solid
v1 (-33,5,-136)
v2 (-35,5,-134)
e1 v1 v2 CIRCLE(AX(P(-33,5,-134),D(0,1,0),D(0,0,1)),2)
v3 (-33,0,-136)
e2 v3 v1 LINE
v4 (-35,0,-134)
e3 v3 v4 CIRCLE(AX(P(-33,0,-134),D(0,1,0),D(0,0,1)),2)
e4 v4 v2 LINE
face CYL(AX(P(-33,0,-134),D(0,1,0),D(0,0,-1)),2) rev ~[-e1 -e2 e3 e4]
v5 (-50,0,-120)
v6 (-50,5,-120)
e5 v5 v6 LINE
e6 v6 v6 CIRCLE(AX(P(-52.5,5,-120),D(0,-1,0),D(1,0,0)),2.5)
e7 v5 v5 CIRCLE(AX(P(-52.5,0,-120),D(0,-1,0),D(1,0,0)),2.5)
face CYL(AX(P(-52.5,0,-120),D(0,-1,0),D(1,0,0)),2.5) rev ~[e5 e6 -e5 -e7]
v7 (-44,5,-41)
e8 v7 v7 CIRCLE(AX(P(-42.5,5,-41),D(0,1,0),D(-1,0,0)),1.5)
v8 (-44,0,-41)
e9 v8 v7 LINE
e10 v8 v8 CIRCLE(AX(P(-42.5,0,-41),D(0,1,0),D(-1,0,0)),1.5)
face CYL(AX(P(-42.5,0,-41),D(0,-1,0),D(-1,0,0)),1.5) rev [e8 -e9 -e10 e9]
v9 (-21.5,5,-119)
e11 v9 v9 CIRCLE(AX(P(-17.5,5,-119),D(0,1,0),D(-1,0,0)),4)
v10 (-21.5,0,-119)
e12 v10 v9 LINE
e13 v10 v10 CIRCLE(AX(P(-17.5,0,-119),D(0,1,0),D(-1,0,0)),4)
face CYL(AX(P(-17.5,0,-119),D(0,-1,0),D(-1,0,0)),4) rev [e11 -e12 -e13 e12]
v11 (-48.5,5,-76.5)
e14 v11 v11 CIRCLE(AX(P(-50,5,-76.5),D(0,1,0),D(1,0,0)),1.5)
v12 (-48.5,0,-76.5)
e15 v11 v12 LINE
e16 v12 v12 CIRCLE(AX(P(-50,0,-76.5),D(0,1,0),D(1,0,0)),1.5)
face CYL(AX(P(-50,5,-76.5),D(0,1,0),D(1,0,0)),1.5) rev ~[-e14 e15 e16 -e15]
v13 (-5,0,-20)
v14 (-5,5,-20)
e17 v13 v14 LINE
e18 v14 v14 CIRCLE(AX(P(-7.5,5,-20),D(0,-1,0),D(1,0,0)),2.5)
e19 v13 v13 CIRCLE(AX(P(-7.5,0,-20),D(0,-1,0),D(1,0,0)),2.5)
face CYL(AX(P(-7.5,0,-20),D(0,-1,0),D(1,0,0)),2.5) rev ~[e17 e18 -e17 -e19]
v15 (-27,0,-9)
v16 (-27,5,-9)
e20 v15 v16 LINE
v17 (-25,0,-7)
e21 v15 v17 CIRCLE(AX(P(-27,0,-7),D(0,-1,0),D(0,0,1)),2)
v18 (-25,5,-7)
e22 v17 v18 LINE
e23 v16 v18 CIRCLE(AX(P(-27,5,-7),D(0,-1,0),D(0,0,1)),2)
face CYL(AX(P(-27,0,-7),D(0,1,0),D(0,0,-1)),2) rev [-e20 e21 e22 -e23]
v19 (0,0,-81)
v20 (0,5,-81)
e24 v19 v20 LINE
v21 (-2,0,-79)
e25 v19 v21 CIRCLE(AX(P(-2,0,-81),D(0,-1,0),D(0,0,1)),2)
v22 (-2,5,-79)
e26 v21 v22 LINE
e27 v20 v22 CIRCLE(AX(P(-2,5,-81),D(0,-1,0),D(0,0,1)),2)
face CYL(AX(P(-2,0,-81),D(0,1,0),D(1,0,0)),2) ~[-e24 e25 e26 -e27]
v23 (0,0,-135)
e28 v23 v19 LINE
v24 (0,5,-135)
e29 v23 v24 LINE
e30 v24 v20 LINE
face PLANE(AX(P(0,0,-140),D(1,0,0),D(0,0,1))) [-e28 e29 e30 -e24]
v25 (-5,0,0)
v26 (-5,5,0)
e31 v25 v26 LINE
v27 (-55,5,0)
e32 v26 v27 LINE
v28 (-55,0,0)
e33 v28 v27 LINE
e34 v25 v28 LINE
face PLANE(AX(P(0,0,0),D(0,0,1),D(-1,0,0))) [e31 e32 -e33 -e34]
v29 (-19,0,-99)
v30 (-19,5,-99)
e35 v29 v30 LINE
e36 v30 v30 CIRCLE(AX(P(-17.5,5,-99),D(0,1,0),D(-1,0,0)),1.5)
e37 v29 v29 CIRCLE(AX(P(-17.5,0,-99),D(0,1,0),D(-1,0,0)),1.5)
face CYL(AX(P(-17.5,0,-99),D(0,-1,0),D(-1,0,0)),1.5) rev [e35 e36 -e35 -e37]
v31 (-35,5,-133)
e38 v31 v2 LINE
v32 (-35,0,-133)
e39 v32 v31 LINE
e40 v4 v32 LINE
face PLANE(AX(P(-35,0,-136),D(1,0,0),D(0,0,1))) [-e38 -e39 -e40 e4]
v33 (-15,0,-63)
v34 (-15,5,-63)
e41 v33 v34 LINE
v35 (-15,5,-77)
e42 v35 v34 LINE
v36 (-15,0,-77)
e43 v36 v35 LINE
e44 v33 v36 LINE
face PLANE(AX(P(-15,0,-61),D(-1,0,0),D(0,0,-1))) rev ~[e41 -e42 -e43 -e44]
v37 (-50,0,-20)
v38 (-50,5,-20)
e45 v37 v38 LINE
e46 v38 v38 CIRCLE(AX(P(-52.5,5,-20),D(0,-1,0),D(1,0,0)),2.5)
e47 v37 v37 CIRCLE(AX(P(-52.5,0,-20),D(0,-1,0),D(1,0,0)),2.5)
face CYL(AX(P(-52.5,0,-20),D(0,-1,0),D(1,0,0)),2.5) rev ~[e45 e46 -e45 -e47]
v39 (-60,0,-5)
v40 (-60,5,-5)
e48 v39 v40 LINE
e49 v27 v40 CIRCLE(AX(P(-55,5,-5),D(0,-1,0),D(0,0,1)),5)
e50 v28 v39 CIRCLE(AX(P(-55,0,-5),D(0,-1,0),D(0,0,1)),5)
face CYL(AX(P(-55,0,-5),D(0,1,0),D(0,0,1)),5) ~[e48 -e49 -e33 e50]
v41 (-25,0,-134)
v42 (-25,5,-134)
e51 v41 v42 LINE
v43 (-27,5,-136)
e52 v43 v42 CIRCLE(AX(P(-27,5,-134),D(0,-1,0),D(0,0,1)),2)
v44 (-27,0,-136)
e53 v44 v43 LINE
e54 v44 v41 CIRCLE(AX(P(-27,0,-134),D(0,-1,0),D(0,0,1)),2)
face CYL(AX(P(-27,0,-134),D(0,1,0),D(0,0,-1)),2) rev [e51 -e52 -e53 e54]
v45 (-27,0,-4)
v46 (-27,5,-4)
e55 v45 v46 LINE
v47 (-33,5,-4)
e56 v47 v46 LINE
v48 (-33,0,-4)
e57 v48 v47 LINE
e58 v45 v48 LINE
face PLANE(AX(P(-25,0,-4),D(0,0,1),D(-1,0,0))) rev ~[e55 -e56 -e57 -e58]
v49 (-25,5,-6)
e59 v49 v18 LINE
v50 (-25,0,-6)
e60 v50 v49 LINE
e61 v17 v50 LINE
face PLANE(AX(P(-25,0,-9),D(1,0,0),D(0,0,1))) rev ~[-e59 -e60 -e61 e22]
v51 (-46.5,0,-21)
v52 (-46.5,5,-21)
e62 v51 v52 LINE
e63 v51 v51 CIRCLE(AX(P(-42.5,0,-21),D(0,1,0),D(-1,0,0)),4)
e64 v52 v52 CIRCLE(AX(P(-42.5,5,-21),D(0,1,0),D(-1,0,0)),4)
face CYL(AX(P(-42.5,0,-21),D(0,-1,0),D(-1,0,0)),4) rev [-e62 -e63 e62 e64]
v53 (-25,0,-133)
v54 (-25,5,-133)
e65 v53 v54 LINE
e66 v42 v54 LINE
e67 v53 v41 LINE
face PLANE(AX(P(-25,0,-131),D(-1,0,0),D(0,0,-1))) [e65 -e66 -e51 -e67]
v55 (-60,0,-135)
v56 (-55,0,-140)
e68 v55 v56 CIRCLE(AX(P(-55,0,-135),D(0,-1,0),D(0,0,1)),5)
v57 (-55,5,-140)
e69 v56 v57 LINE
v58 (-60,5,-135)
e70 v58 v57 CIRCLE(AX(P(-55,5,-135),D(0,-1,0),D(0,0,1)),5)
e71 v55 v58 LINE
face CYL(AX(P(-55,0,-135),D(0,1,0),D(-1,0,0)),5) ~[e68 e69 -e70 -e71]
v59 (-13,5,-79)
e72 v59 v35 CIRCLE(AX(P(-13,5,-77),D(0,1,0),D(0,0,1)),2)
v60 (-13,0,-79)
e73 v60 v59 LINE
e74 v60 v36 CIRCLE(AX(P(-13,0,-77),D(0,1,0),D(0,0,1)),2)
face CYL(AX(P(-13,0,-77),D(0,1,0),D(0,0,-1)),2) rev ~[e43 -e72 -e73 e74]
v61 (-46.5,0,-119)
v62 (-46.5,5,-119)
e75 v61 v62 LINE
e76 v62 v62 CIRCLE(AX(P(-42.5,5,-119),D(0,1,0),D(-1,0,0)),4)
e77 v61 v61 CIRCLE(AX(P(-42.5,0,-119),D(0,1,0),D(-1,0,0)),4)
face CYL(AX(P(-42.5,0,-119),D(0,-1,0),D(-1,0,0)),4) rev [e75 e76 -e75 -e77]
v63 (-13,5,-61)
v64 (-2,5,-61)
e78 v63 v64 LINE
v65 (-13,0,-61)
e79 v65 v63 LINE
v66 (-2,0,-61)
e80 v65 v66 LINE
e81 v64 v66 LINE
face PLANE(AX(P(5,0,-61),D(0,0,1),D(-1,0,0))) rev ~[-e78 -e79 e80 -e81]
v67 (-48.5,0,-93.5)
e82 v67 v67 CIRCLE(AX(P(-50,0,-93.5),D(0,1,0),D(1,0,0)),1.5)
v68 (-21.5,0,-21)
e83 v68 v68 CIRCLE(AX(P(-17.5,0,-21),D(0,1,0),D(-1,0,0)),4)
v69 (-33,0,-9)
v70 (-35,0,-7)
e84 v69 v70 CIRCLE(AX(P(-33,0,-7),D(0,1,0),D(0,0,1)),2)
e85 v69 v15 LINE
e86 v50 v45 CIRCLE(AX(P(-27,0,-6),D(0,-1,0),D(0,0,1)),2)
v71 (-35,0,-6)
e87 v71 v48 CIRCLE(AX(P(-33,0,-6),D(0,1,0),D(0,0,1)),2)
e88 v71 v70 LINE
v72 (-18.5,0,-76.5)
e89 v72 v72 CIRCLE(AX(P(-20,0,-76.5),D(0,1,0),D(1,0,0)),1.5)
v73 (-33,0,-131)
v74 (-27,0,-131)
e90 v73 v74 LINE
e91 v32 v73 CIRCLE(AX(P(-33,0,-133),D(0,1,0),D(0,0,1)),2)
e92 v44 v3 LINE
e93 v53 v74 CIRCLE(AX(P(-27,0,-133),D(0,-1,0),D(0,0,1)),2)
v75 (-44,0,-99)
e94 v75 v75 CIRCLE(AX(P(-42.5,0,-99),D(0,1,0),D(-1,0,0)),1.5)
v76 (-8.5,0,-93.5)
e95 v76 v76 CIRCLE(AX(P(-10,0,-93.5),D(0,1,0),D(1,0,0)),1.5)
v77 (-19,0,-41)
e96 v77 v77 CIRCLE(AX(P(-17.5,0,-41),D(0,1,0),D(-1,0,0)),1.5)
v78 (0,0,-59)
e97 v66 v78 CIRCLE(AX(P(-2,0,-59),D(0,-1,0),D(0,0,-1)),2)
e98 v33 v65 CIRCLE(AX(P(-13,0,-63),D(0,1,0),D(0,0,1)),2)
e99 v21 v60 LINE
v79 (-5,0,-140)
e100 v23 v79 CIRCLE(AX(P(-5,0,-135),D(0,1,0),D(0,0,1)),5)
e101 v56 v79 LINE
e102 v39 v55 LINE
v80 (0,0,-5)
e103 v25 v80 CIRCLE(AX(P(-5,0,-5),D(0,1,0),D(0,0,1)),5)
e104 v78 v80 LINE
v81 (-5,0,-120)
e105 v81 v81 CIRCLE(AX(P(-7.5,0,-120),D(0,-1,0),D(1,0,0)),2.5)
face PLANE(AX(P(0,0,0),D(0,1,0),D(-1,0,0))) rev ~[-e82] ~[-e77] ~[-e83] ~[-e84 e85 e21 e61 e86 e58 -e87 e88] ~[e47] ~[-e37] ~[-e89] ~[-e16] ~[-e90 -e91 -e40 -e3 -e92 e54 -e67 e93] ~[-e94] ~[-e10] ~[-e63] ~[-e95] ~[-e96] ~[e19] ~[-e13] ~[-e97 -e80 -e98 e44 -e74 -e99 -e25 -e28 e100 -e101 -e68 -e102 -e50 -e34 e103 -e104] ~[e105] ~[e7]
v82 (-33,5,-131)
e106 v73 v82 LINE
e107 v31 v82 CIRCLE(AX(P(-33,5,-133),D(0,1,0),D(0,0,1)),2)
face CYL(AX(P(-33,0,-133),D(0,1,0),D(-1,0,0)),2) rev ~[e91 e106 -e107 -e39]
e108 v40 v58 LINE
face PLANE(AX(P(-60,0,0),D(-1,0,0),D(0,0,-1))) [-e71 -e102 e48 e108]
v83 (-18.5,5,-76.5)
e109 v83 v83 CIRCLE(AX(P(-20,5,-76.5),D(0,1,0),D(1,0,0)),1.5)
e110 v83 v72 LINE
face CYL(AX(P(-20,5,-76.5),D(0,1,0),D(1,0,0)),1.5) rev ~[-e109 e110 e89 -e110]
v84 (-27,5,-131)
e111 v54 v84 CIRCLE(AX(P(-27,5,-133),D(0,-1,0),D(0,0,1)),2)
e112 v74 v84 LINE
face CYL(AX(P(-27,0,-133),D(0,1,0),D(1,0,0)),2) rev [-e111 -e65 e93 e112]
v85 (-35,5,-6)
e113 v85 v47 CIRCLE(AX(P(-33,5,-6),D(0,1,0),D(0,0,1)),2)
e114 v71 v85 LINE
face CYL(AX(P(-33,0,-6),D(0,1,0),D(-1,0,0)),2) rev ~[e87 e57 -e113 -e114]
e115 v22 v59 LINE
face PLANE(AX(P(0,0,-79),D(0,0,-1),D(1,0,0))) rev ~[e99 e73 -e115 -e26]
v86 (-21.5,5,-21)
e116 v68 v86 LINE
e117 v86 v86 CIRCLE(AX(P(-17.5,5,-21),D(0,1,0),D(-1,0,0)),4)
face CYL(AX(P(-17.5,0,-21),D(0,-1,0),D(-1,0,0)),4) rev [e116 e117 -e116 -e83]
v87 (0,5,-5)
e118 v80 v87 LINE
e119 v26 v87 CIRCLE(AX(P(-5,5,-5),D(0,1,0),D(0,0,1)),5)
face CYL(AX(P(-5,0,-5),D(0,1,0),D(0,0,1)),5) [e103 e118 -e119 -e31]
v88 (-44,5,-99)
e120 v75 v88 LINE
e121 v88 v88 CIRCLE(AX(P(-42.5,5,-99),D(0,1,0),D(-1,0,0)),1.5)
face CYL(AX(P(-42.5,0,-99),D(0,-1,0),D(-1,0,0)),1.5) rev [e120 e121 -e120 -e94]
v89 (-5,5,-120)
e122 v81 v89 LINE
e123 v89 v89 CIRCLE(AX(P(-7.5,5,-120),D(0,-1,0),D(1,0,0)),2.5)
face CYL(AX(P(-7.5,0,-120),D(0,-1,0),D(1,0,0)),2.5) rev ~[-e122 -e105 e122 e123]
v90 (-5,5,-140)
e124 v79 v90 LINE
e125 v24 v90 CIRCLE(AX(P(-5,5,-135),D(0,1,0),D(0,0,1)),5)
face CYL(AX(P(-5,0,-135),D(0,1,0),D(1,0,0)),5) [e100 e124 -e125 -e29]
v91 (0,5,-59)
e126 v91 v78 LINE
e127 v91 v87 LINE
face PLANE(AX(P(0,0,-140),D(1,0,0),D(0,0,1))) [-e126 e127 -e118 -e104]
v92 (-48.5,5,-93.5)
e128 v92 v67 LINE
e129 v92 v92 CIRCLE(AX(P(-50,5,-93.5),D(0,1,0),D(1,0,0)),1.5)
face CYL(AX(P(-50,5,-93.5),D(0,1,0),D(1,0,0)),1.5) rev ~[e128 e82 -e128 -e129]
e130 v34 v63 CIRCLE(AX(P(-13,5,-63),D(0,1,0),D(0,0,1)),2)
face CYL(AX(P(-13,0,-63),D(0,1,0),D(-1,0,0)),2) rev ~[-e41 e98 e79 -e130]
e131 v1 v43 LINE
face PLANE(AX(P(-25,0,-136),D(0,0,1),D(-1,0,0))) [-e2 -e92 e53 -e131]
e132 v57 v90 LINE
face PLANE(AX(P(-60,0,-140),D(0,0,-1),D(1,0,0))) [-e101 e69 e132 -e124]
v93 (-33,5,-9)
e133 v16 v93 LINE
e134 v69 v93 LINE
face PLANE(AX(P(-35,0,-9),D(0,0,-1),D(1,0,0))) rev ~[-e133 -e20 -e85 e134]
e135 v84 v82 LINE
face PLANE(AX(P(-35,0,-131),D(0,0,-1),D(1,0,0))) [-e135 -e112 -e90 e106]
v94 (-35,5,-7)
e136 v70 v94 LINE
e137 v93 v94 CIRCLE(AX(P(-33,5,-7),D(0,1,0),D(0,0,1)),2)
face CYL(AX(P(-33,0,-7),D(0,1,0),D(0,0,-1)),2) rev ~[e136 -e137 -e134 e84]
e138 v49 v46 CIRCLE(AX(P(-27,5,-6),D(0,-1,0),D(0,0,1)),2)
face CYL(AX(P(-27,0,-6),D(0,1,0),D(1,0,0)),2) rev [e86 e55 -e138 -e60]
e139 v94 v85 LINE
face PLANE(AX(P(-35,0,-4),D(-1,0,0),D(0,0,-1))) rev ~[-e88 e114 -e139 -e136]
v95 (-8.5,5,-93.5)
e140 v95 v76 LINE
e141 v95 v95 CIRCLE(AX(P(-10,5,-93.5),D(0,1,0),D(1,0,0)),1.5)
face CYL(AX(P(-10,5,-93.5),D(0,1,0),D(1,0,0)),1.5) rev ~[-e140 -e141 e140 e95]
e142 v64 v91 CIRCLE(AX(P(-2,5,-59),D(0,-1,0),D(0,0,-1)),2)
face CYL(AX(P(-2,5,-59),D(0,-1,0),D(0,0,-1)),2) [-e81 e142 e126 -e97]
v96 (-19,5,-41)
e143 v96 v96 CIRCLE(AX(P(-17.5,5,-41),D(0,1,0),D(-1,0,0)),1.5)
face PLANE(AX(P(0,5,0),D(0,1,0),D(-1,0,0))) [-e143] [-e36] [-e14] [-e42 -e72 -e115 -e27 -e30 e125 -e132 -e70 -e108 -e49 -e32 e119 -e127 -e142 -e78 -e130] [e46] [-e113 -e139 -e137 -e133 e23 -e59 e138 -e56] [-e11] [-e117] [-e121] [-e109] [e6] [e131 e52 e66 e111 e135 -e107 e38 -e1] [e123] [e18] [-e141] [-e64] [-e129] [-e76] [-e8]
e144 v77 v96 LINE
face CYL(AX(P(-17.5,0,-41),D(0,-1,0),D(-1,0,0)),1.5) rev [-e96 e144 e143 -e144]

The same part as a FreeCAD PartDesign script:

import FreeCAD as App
import Part
import Sketcher


def edges_at(feature, points):
    """Names of the edges that pass closest to the given points."""
    edges = feature.Shape.Edges
    near = lambda p: min(range(len(edges)), key=lambda i: edges[i].distToShape(Part.Vertex(*p))[0])
    return sorted({f"Edge{near(p) + 1}" for p in points})


def add_polygon(sketch, points):
    """Adds a closed chain of lines whose ends are joined by coincident constraints."""
    first, n = sketch.GeometryCount, len(points)
    for a, b in zip(points, points[1:] + points[:1]):
        sketch.addGeometry(Part.LineSegment(App.Vector(*a, 0), App.Vector(*b, 0)), False)
    for i in range(n):
        sketch.addConstraint(Sketcher.Constraint("Coincident", first + i, 2, first + (i + 1) % n, 1))

doc = App.newDocument("Part")
body = doc.addObject("PartDesign::Body", "Body")

# Sketch on XZ plane
sketch1 = doc.addObject("Sketcher::SketchObject", "Sketch")
body.addObject(sketch1)
sketch1.AttachmentSupport = (doc.XZ_Plane, [""])
sketch1.MapMode = "FlatFace"
add_polygon(sketch1, [(-60, 0), (0, 0), (0, -140), (-60, -140)])  # lines 0-3
sketch1.addGeometry(Part.Circle(App.Vector(-17.5, -119, 0), App.Vector(0, 0, 1), 4), False)  # 4
sketch1.addGeometry(Part.Circle(App.Vector(-17.5, -99, 0), App.Vector(0, 0, 1), 1.5), False)  # 5
sketch1.addGeometry(Part.Circle(App.Vector(-42.5, -119, 0), App.Vector(0, 0, 1), 4), False)  # 6
sketch1.addGeometry(Part.Circle(App.Vector(-42.5, -99, 0), App.Vector(0, 0, 1), 1.5), False)  # 7
sketch1.addGeometry(Part.Circle(App.Vector(-17.5, -41, 0), App.Vector(0, 0, 1), 1.5), False)  # 8
sketch1.addGeometry(Part.Circle(App.Vector(-17.5, -21, 0), App.Vector(0, 0, 1), 4), False)  # 9
sketch1.addGeometry(Part.Circle(App.Vector(-42.5, -41, 0), App.Vector(0, 0, 1), 1.5), False)  # 10
sketch1.addGeometry(Part.Circle(App.Vector(-42.5, -21, 0), App.Vector(0, 0, 1), 4), False)  # 11
sketch1.addConstraint(Sketcher.Constraint("Horizontal", 0))
sketch1.addConstraint(Sketcher.Constraint("Vertical", 1))
sketch1.addConstraint(Sketcher.Constraint("Horizontal", 2))
sketch1.addConstraint(Sketcher.Constraint("Vertical", 3))
sketch1.addConstraint(Sketcher.Constraint("Coincident", 0, 2, -1, 1))
sketch1.addConstraint(Sketcher.Constraint("Equal", 4, 6))
sketch1.addConstraint(Sketcher.Constraint("Equal", 5, 7))
sketch1.addConstraint(Sketcher.Constraint("Equal", 7, 8))
sketch1.addConstraint(Sketcher.Constraint("Equal", 6, 9))
sketch1.addConstraint(Sketcher.Constraint("Equal", 8, 10))
sketch1.addConstraint(Sketcher.Constraint("Equal", 9, 11))
sketch1.addConstraint(Sketcher.Constraint("Horizontal", 4, 3, 6, 3))
sketch1.addConstraint(Sketcher.Constraint("Horizontal", 5, 3, 7, 3))
sketch1.addConstraint(Sketcher.Constraint("Horizontal", 8, 3, 10, 3))
sketch1.addConstraint(Sketcher.Constraint("Horizontal", 9, 3, 11, 3))
sketch1.addConstraint(Sketcher.Constraint("Vertical", 4, 3, 5, 3))
sketch1.addConstraint(Sketcher.Constraint("Vertical", 6, 3, 7, 3))
sketch1.addConstraint(Sketcher.Constraint("Vertical", 5, 3, 8, 3))
sketch1.addConstraint(Sketcher.Constraint("Vertical", 8, 3, 9, 3))
sketch1.addConstraint(Sketcher.Constraint("Vertical", 7, 3, 10, 3))
sketch1.addConstraint(Sketcher.Constraint("Vertical", 10, 3, 11, 3))
sketch1.addConstraint(Sketcher.Constraint("Diameter", 4, 8.0))
sketch1.addConstraint(Sketcher.Constraint("Diameter", 5, 3.0))
sketch1.addConstraint(Sketcher.Constraint("DistanceX", 0, 1, 0, 2, 60.0))
sketch1.addConstraint(Sketcher.Constraint("DistanceY", 1, 2, 1, 1, 140.0))
sketch1.addConstraint(Sketcher.Constraint("DistanceY", 9, 3, -1, 1, 21.0))
sketch1.addConstraint(Sketcher.Constraint("DistanceY", 4, 3, 5, 3, 20.0))
sketch1.addConstraint(Sketcher.Constraint("DistanceY", 8, 3, 9, 3, 20.0))
sketch1.addConstraint(Sketcher.Constraint("DistanceY", 1, 2, 4, 3, 21.0))
sketch1.addConstraint(Sketcher.Constraint("DistanceX", 6, 3, 4, 3, 25.0))
sketch1.addConstraint(Sketcher.Constraint("DistanceX", 4, 3, -1, 1, 17.5))
pad1 = doc.addObject("PartDesign::Pad", "Pad")
body.addObject(pad1)
pad1.Profile = sketch1
pad1.Length = 5
pad1.Reversed = True

# Sketch on XZ plane
sketch2 = doc.addObject("Sketcher::SketchObject", "Sketch001")
body.addObject(sketch2)
sketch2.AttachmentSupport = (doc.XZ_Plane, [""])
sketch2.MapMode = "FlatFace"
sketch2.addGeometry(Part.Circle(App.Vector(-7.5, -20, 0), App.Vector(0, 0, 1), 2.5), False)
sketch2.addGeometry(Part.Circle(App.Vector(-7.5, -120, 0), App.Vector(0, 0, 1), 2.5), False)
sketch2.addGeometry(Part.Circle(App.Vector(-52.5, -20, 0), App.Vector(0, 0, 1), 2.5), False)
sketch2.addGeometry(Part.Circle(App.Vector(-52.5, -120, 0), App.Vector(0, 0, 1), 2.5), False)
sketch2.addConstraint(Sketcher.Constraint("Equal", 0, 1))
sketch2.addConstraint(Sketcher.Constraint("Equal", 1, 2))
sketch2.addConstraint(Sketcher.Constraint("Equal", 2, 3))
sketch2.addConstraint(Sketcher.Constraint("Horizontal", 0, 3, 2, 3))
sketch2.addConstraint(Sketcher.Constraint("Horizontal", 1, 3, 3, 3))
sketch2.addConstraint(Sketcher.Constraint("Vertical", 0, 3, 1, 3))
sketch2.addConstraint(Sketcher.Constraint("Vertical", 2, 3, 3, 3))
sketch2.addConstraint(Sketcher.Constraint("Diameter", 0, 5.0))
sketch2.addConstraint(Sketcher.Constraint("DistanceY", 0, 3, -1, 1, 20.0))
sketch2.addConstraint(Sketcher.Constraint("DistanceX", 0, 3, -1, 1, 7.5))
sketch2.addConstraint(Sketcher.Constraint("DistanceY", 1, 3, -1, 1, 120.0))
sketch2.addConstraint(Sketcher.Constraint("DistanceX", 2, 3, 0, 3, 45.0))
pocket1 = doc.addObject("PartDesign::Pocket", "Pocket")
body.addObject(pocket1)
pocket1.Profile = sketch2
pocket1.Length = 10

# Sketch on XZ plane
sketch3 = doc.addObject("Sketcher::SketchObject", "Sketch002")
body.addObject(sketch3)
sketch3.AttachmentSupport = (doc.XZ_Plane, [""])
sketch3.MapMode = "FlatFace"
add_polygon(sketch3, [(-25, -9), (-25, -4), (-35, -4), (-35, -9)])  # lines 0-3
add_polygon(sketch3, [(-35, -136), (-25, -136), (-25, -131), (-35, -131)])  # lines 4-7
sketch3.addConstraint(Sketcher.Constraint("Vertical", 0))
sketch3.addConstraint(Sketcher.Constraint("Horizontal", 1))
sketch3.addConstraint(Sketcher.Constraint("Vertical", 2))
sketch3.addConstraint(Sketcher.Constraint("Horizontal", 3))
sketch3.addConstraint(Sketcher.Constraint("Horizontal", 4))
sketch3.addConstraint(Sketcher.Constraint("Vertical", 5))
sketch3.addConstraint(Sketcher.Constraint("Horizontal", 6))
sketch3.addConstraint(Sketcher.Constraint("Vertical", 7))
sketch3.addConstraint(Sketcher.Constraint("Vertical", 3, 2, 4, 2))
sketch3.addConstraint(Sketcher.Constraint("Vertical", 2, 2, 6, 2))
sketch3.addConstraint(Sketcher.Constraint("Equal", 2, 5))
sketch3.addConstraint(Sketcher.Constraint("DistanceX", 1, 2, 1, 1, 10.0))
sketch3.addConstraint(Sketcher.Constraint("DistanceY", 0, 1, 0, 2, 5.0))
sketch3.addConstraint(Sketcher.Constraint("DistanceX", 0, 2, -1, 1, 25.0))
sketch3.addConstraint(Sketcher.Constraint("DistanceY", 0, 2, -1, 1, 4.0))
sketch3.addConstraint(Sketcher.Constraint("DistanceY", 4, 2, -1, 1, 136.0))
pocket2 = doc.addObject("PartDesign::Pocket", "Pocket001")
body.addObject(pocket2)
pocket2.Profile = sketch3
pocket2.Length = 10
doc.recompute()

fillet = doc.addObject("PartDesign::Fillet", "Fillet")
body.addObject(fillet)
fillet.Base = (pocket2, edges_at(pocket2, [
    (-60, 2.5, 0),
    (-60, 2.5, -140),
    (0, 2.5, -140),
    (0, 2.5, 0),
]))
fillet.Radius = 5

# Sketch on XZ plane
sketch4 = doc.addObject("Sketcher::SketchObject", "Sketch003")
body.addObject(sketch4)
sketch4.AttachmentSupport = (doc.XZ_Plane, [""])
sketch4.MapMode = "FlatFace"
sketch4.AttachmentOffset = App.Placement(App.Vector(0, 0, -5), App.Rotation())
sketch4.addGeometry(Part.Circle(App.Vector(-50, -76.5, 0), App.Vector(0, 0, 1), 1.5), False)
sketch4.addGeometry(Part.Circle(App.Vector(-50, -93.5, 0), App.Vector(0, 0, 1), 1.5), False)
sketch4.addGeometry(Part.Circle(App.Vector(-20, -76.5, 0), App.Vector(0, 0, 1), 1.5), False)
sketch4.addGeometry(Part.Circle(App.Vector(-10, -93.5, 0), App.Vector(0, 0, 1), 1.5), False)
sketch4.addConstraint(Sketcher.Constraint("Equal", 0, 1))
sketch4.addConstraint(Sketcher.Constraint("Equal", 1, 2))
sketch4.addConstraint(Sketcher.Constraint("Equal", 2, 3))
sketch4.addConstraint(Sketcher.Constraint("Horizontal", 0, 3, 2, 3))
sketch4.addConstraint(Sketcher.Constraint("Horizontal", 1, 3, 3, 3))
sketch4.addConstraint(Sketcher.Constraint("Vertical", 0, 3, 1, 3))
sketch4.addConstraint(Sketcher.Constraint("Diameter", 0, 3.0))
sketch4.addConstraint(Sketcher.Constraint("DistanceX", 2, 3, -1, 1, 20.0))
sketch4.addConstraint(Sketcher.Constraint("DistanceX", 3, 3, -1, 1, 10.0))
sketch4.addConstraint(Sketcher.Constraint("DistanceX", 0, 3, -1, 1, 50.0))
sketch4.addConstraint(Sketcher.Constraint("DistanceY", 1, 3, 0, 3, 17.0))
sketch4.addConstraint(Sketcher.Constraint("DistanceY", 0, 3, -1, 1, 76.5))
pocket3 = doc.addObject("PartDesign::Pocket", "Pocket002")
body.addObject(pocket3)
pocket3.Profile = sketch4
pocket3.Length = 10
pocket3.Reversed = True

# Sketch on XZ plane
sketch5 = doc.addObject("Sketcher::SketchObject", "Sketch004")
body.addObject(sketch5)
sketch5.AttachmentSupport = (doc.XZ_Plane, [""])
sketch5.MapMode = "FlatFace"
add_polygon(sketch5, [(5, -79), (5, -61), (-15, -61), (-15, -79)])  # lines 0-3
sketch5.addConstraint(Sketcher.Constraint("Vertical", 0))
sketch5.addConstraint(Sketcher.Constraint("Horizontal", 1))
sketch5.addConstraint(Sketcher.Constraint("Vertical", 2))
sketch5.addConstraint(Sketcher.Constraint("Horizontal", 3))
sketch5.addConstraint(Sketcher.Constraint("DistanceX", -1, 1, 0, 2, 5.0))
sketch5.addConstraint(Sketcher.Constraint("DistanceX", 1, 2, -1, 1, 15.0))
sketch5.addConstraint(Sketcher.Constraint("DistanceY", 0, 1, 0, 2, 18.0))
sketch5.addConstraint(Sketcher.Constraint("DistanceY", 0, 2, -1, 1, 61.0))
pocket4 = doc.addObject("PartDesign::Pocket", "Pocket003")
body.addObject(pocket4)
pocket4.Profile = sketch5
pocket4.Length = 10
doc.recompute()

fillet2 = doc.addObject("PartDesign::Fillet", "Fillet001")
body.addObject(fillet2)
fillet2.Base = (pocket4, edges_at(pocket4, [
    (0, 2.5, -79),
    (0, 2.5, -61),
    (-15, 2.5, -79),
    (-15, 2.5, -61),
]))
fillet2.Radius = 2
doc.recompute()

fillet3 = doc.addObject("PartDesign::Fillet", "Fillet002")
body.addObject(fillet3)
fillet3.Base = (fillet2, edges_at(fillet2, [
    (-25, 2.5, -9),
    (-25, 2.5, -4),
    (-35, 2.5, -4),
    (-35, 2.5, -9),
    (-35, 2.5, -136),
    (-35, 2.5, -131),
    (-25, 2.5, -131),
    (-25, 2.5, -136),
]))
fillet3.Radius = 2

doc.recompute()
